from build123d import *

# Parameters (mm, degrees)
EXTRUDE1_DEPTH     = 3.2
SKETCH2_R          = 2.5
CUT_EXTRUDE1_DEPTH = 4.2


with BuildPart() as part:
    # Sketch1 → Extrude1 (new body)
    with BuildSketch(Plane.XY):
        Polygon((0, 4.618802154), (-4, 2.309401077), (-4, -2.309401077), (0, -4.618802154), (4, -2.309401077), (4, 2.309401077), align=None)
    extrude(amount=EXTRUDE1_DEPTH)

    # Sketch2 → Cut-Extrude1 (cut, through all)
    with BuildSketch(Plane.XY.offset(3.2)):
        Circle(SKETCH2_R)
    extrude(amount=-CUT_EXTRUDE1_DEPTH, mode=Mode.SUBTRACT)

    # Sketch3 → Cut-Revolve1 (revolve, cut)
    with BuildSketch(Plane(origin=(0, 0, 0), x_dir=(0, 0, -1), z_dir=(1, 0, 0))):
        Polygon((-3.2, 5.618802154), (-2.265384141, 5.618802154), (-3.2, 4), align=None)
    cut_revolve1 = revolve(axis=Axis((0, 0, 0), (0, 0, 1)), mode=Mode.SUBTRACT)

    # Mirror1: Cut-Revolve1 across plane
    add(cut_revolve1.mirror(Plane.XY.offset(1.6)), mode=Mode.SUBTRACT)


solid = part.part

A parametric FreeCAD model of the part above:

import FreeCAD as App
import Part
import Sketcher

V = App.Vector
Q = App.Units.Quantity


def add_polygon(sketch, points):
    """Adds a closed chain of lines whose ends are joined by coincident constraints."""
    first, n = sketch.GeometryCount, len(points)
    for a, b in zip(points, points[1:] + points[:1]):
        sketch.addGeometry(Part.LineSegment(App.Vector(*a, 0), App.Vector(*b, 0)), False)
    for i in range(n):
        sketch.addConstraint(Sketcher.Constraint("Coincident", first + i, 2, first + (i + 1) % n, 1))

doc = App.newDocument("Part")
body = doc.addObject("PartDesign::Body", "Body")

# Sketch on XY plane
sketch1 = body.newObject("Sketcher::SketchObject", "Sketch")
sketch1.AttachmentSupport = (doc.getObject("XY_Plane"), [""])
sketch1.MapMode = "FlatFace"
add_polygon(sketch1, [(0, 4.6), (-4, 2.3), (-4, -2.3), (0, -4.6), (4, -2.3), (4, 2.3)])  # lines 0-5
sketch1.addConstraint([
    Sketcher.Constraint("Vertical", 1),
    Sketcher.Constraint("Vertical", 4),
    Sketcher.Constraint("Symmetric", 0, 2, 3, 2, -1, 1),
    Sketcher.Constraint("Symmetric", 2, 2, 5, 2, -1, 1),
    Sketcher.Constraint("PointOnObject", 2, 2, -2),
    Sketcher.Constraint("Parallel", 2, 5),
    Sketcher.Constraint("Horizontal", 1, 2, 3, 2),
    Sketcher.Constraint("Angle", 0, Q("-150 deg")),
    Sketcher.Constraint("DistanceX", 0, 2, -1, 1, Q("4 mm")),
    Sketcher.Constraint("DistanceY", -1, 1, 0, 2, Q("2.309401 mm")),
])
pad1 = body.newObject("PartDesign::Pad", "Pad")
pad1.Profile = sketch1
pad1.Length = 3.2

# Sketch on XY plane
sketch2 = body.newObject("Sketcher::SketchObject", "Sketch001")
sketch2.AttachmentSupport = (doc.getObject("XY_Plane"), [""])
sketch2.MapMode = "FlatFace"
sketch2.AttachmentOffset = App.Placement(V(0, 0, 3.2), App.Rotation())
sketch2.addGeometry(Part.Circle(V(0, 0, 0), V(0, 0, 1), 2.5), False)
sketch2.addConstraint([
    Sketcher.Constraint("Coincident", 0, 3, -1, 1),
    Sketcher.Constraint("Diameter", 0, Q("5 mm")),
])
pocket1 = body.newObject("PartDesign::Pocket", "Pocket")
pocket1.Profile = sketch2
pocket1.Type = "ThroughAll"

# Sketch on YZ plane
sketch3 = body.newObject("Sketcher::SketchObject", "Sketch002")
sketch3.AttachmentSupport = (doc.getObject("YZ_Plane"), [""])
sketch3.MapMode = "FlatFace"
add_polygon(sketch3, [(5.6, 2.3), (5.6, 3.2), (4, 3.2)])  # lines 0-2
sketch3.addConstraint([
    Sketcher.Constraint("Vertical", 0),
    Sketcher.Constraint("Horizontal", 1),
    Sketcher.Constraint("Angle", 2, Q("-30 deg")),
    Sketcher.Constraint("DistanceX", -1, 1, 1, 2, Q("4 mm")),
    Sketcher.Constraint("DistanceY", -1, 1, 0, 2, Q("3.2 mm")),
    Sketcher.Constraint("Distance", 2, Q("1.869232 mm")),
])
groove = body.newObject("PartDesign::Groove", "Groove")
groove.Profile = sketch3
groove.ReferenceAxis = (sketch3, ["V_Axis"])
groove.Angle = 360
doc.recompute()

datumplane = body.newObject("PartDesign::Plane", "DatumPlane")
datumplane.AttachmentSupport = (doc.getObject("XY_Plane"), [""])
datumplane.MapMode = "FlatFace"
datumplane.AttachmentOffset = App.Placement(V(0, 0, 1.6), App.Rotation())
mirrored = body.newObject("PartDesign::Mirrored", "Mirrored")
mirrored.Originals = [groove]
mirrored.MirrorPlane = (datumplane, [""])
body.Tip = mirrored

doc.recompute()
